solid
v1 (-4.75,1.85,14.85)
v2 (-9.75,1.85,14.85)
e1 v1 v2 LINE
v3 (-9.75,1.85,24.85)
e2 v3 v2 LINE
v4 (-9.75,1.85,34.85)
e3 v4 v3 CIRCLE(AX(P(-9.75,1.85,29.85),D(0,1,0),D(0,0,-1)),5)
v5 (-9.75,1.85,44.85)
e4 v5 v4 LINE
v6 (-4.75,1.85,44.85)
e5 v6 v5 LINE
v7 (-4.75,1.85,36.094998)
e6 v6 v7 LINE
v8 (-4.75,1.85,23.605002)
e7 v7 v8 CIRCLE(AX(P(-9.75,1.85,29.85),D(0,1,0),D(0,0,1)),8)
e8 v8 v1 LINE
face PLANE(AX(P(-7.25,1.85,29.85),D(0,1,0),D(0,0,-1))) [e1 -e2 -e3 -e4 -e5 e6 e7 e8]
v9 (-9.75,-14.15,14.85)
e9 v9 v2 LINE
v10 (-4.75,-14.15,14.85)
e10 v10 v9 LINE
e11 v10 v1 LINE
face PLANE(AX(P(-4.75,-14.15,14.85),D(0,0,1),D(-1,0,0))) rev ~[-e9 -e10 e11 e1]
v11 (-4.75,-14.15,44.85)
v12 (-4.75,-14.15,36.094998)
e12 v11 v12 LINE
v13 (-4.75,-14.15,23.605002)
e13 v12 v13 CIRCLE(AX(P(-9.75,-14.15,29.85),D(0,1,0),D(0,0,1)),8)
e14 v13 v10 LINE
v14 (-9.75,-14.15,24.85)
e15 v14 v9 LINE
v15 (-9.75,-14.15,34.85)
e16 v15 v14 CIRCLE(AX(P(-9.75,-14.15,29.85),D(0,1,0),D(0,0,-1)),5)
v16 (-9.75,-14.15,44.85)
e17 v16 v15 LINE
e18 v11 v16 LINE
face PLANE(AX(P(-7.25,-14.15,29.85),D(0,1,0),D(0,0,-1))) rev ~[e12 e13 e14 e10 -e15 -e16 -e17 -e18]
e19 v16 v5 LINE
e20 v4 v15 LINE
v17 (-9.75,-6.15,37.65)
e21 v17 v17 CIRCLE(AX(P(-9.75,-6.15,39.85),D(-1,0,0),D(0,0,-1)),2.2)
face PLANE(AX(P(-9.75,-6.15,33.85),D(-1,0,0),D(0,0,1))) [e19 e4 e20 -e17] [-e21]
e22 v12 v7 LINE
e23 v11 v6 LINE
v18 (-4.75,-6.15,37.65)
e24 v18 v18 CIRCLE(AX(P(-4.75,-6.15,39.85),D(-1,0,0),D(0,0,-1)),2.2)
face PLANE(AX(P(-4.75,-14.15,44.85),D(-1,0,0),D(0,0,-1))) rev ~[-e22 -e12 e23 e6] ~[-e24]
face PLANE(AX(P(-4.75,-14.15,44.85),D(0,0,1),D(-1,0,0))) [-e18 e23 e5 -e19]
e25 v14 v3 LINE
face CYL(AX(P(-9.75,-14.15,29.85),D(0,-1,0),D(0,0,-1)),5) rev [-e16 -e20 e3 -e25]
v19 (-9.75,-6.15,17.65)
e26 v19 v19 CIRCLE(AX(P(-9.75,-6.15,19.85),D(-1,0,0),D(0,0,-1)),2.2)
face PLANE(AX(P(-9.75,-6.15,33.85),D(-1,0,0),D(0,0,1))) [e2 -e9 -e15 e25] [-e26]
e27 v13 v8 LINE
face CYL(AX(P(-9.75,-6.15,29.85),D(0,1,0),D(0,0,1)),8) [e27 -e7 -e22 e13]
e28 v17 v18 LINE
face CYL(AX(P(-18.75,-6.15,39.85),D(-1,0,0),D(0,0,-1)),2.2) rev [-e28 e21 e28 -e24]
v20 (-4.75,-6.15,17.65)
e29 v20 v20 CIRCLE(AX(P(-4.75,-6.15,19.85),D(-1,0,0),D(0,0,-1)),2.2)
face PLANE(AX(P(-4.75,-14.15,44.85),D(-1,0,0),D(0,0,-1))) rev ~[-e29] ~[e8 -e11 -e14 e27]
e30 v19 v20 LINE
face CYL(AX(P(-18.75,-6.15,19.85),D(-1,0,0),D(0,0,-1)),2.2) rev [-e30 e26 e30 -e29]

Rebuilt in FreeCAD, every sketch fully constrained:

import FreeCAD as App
import Part
import Sketcher

doc = App.newDocument("Part")
params = doc.addObject("Spreadsheet::Sheet", "Params")
for row, (alias, value) in enumerate([
    ("sketch1_diameter", "4.4 mm"),
    ("pad1_length", "20 mm"),
    ("sketch2_diameter", "4.4 mm"),
    ("pad2_length", "20 mm"),
    ("sketch3_diameter", "10 mm"),
    ("pad3_length", "16 mm"),
    ("sketch4_width", "8 mm"),
    ("sketch4_height", "16 mm"),
    ("revolution_angle", "180 deg"),
    ("sketch5_width", "30 mm"),
    ("sketch5_height", "5 mm"),
    ("pad4_length", "16 mm"),
], start=1):
    params.set(f"A{row}", alias)
    params.set(f"B{row}", "=" + value)
    params.setAlias(f"B{row}", alias)

body = doc.addObject("PartDesign::Body", "Body")

sketch1 = body.newObject("Sketcher::SketchObject", "Sketch")
sketch1.AttachmentSupport = (doc.getObject("XZ_Plane"), [""])
sketch1.MapMode = "FlatFace"
sketch1.AttachmentOffset = App.Placement(App.Vector(0, 0, -9), App.Rotation())
sketch1.addGeometry(Part.Circle(App.Vector(10, 8, 0), App.Vector(0, 0, 1), 2.2), False)
sketch1.addConstraint([
    Sketcher.Constraint("Diameter", 0, 4.4),
    Sketcher.Constraint("DistanceX", -1, 1, 0, 3, 10.0),
    Sketcher.Constraint("DistanceY", -1, 1, 0, 3, 8.0),
])
sketch1.setExpression("Constraints[0]", "Params.sketch1_diameter")
pad1 = body.newObject("PartDesign::Pad", "Pad")
pad1.Profile = sketch1
pad1.setExpression("Length", "Params.pad1_length")
body2 = doc.addObject("PartDesign::Body", "Body001")

sketch2 = body2.newObject("Sketcher::SketchObject", "Sketch001")
sketch2.AttachmentSupport = (doc.getObject("XZ_Plane001"), [""])
sketch2.MapMode = "FlatFace"
sketch2.AttachmentOffset = App.Placement(App.Vector(0, 0, -9), App.Rotation())
sketch2.addGeometry(Part.Circle(App.Vector(-10, 8, 0), App.Vector(0, 0, 1), 2.2), False)
sketch2.addConstraint([
    Sketcher.Constraint("Diameter", 0, 4.4),
    Sketcher.Constraint("DistanceX", 0, 3, -1, 1, 10.0),
    Sketcher.Constraint("DistanceY", -1, 1, 0, 3, 8.0),
])
sketch2.setExpression("Constraints[0]", "Params.sketch2_diameter")
pad2 = body2.newObject("PartDesign::Pad", "Pad001")
pad2.Profile = sketch2
pad2.setExpression("Length", "Params.pad2_length")
body3 = doc.addObject("PartDesign::Body", "Body002")

sketch3 = body3.newObject("Sketcher::SketchObject", "Sketch002")
sketch3.AttachmentSupport = (doc.getObject("XY_Plane002"), [""])
sketch3.MapMode = "FlatFace"
sketch3.addGeometry(Part.Circle(App.Vector(0, 0, 0), App.Vector(0, 0, 1), 5), False)
sketch3.addConstraint([
    Sketcher.Constraint("Coincident", 0, 3, -1, 1),
    Sketcher.Constraint("Diameter", 0, 10.0),
])
sketch3.setExpression("Constraints[1]", "Params.sketch3_diameter")
pad3 = body3.newObject("PartDesign::Pad", "Pad002")
pad3.Profile = sketch3
pad3.setExpression("Length", "Params.pad3_length")
body4 = doc.addObject("PartDesign::Body", "Body003")

sketch4 = body4.newObject("Sketcher::SketchObject", "Sketch003")
sketch4.AttachmentSupport = (doc.getObject("XZ_Plane003"), [""])
sketch4.MapMode = "FlatFace"
sketch4.addGeometry([
    Part.LineSegment(App.Vector(0, 16, 0), App.Vector(0, 0, 0)),
    Part.LineSegment(App.Vector(0, 0, 0), App.Vector(-8, 0, 0)),
    Part.LineSegment(App.Vector(-8, 0, 0), App.Vector(-8, 16, 0)),
    Part.LineSegment(App.Vector(-8, 16, 0), App.Vector(0, 16, 0)),
], False)
sketch4.addConstraint([
    Sketcher.Constraint("Coincident", 0, 2, 1, 1),
    Sketcher.Constraint("Coincident", 1, 2, 2, 1),
    Sketcher.Constraint("Coincident", 2, 2, 3, 1),
    Sketcher.Constraint("Coincident", 3, 2, 0, 1),
    Sketcher.Constraint("Vertical", 0),
    Sketcher.Constraint("Horizontal", 1),
    Sketcher.Constraint("Vertical", 2),
    Sketcher.Constraint("Horizontal", 3),
    Sketcher.Constraint("Coincident", 0, 2, -1, 1),
    Sketcher.Constraint("DistanceX", 1, 2, 1, 1, 8.0),
    Sketcher.Constraint("DistanceY", 0, 2, 0, 1, 16.0),
])
sketch4.setExpression("Constraints[9]", "Params.sketch4_width")
sketch4.setExpression("Constraints[10]", "Params.sketch4_height")
revolution = body4.newObject("PartDesign::Revolution", "Revolution")
revolution.Profile = sketch4
revolution.ReferenceAxis = (sketch4, ["V_Axis"])
revolution.setExpression("Angle", "Params.revolution_angle")
body5 = doc.addObject("PartDesign::Body", "Body004")

sketch5 = body5.newObject("Sketcher::SketchObject", "Sketch004")
sketch5.AttachmentSupport = (doc.getObject("XY_Plane004"), [""])
sketch5.MapMode = "FlatFace"
sketch5.addGeometry([
    Part.LineSegment(App.Vector(-15, 0, 0), App.Vector(-15, -5, 0)),
    Part.LineSegment(App.Vector(-15, -5, 0), App.Vector(15, -5, 0)),
    Part.LineSegment(App.Vector(15, -5, 0), App.Vector(15, 0, 0)),
    Part.LineSegment(App.Vector(15, 0, 0), App.Vector(-15, 0, 0)),
], False)
sketch5.addConstraint([
    Sketcher.Constraint("Coincident", 0, 2, 1, 1),
    Sketcher.Constraint("Coincident", 1, 2, 2, 1),
    Sketcher.Constraint("Coincident", 2, 2, 3, 1),
    Sketcher.Constraint("Coincident", 3, 2, 0, 1),
    Sketcher.Constraint("Vertical", 0),
    Sketcher.Constraint("Horizontal", 1),
    Sketcher.Constraint("Vertical", 2),
    Sketcher.Constraint("Horizontal", 3),
    Sketcher.Constraint("Symmetric", 2, 2, 3, 2, -1, 1),
    Sketcher.Constraint("DistanceX", 1, 1, 1, 2, 30.0),
    Sketcher.Constraint("DistanceY", 0, 2, 0, 1, 5.0),
])
sketch5.setExpression("Constraints[9]", "Params.sketch5_width")
sketch5.setExpression("Constraints[10]", "Params.sketch5_height")
pad4 = body5.newObject("PartDesign::Pad", "Pad003")
pad4.Profile = sketch5
pad4.setExpression("Length", "Params.pad4_length")
doc.recompute()

boolean = body5.newObject("PartDesign::Boolean", "Boolean")
boolean.Type = "Fuse"
boolean.addObjects([body4])
doc.recompute()

boolean2 = body5.newObject("PartDesign::Boolean", "Boolean001")
boolean2.Type = "Cut"
boolean2.addObjects([body3])
doc.recompute()

boolean3 = body5.newObject("PartDesign::Boolean", "Boolean002")
boolean3.Type = "Cut"
boolean3.addObjects([body2])
doc.recompute()

boolean4 = body5.newObject("PartDesign::Boolean", "Boolean003")
boolean4.Type = "Cut"
boolean4.addObjects([body])
body6 = doc.addObject("PartDesign::Body", "Body005")
doc.recompute()

body5.Placement = App.Placement(App.Vector(0, 0, 0), App.Rotation(App.Vector(0, 1, 0), 90))
boolean5 = body6.newObject("PartDesign::Boolean", "Boolean004")
boolean5.Type = "Fuse"
boolean5.addObjects([body5])
body7 = doc.addObject("PartDesign::Body", "Body006")
doc.recompute()

body6.Placement = App.Placement(App.Vector(-9.75, -14.15, 29.85), App.Rotation(App.Vector(0, 0, 1), 90))
boolean6 = body7.newObject("PartDesign::Boolean", "Boolean005")
boolean6.Type = "Fuse"
boolean6.addObjects([body6])

doc.recompute()
